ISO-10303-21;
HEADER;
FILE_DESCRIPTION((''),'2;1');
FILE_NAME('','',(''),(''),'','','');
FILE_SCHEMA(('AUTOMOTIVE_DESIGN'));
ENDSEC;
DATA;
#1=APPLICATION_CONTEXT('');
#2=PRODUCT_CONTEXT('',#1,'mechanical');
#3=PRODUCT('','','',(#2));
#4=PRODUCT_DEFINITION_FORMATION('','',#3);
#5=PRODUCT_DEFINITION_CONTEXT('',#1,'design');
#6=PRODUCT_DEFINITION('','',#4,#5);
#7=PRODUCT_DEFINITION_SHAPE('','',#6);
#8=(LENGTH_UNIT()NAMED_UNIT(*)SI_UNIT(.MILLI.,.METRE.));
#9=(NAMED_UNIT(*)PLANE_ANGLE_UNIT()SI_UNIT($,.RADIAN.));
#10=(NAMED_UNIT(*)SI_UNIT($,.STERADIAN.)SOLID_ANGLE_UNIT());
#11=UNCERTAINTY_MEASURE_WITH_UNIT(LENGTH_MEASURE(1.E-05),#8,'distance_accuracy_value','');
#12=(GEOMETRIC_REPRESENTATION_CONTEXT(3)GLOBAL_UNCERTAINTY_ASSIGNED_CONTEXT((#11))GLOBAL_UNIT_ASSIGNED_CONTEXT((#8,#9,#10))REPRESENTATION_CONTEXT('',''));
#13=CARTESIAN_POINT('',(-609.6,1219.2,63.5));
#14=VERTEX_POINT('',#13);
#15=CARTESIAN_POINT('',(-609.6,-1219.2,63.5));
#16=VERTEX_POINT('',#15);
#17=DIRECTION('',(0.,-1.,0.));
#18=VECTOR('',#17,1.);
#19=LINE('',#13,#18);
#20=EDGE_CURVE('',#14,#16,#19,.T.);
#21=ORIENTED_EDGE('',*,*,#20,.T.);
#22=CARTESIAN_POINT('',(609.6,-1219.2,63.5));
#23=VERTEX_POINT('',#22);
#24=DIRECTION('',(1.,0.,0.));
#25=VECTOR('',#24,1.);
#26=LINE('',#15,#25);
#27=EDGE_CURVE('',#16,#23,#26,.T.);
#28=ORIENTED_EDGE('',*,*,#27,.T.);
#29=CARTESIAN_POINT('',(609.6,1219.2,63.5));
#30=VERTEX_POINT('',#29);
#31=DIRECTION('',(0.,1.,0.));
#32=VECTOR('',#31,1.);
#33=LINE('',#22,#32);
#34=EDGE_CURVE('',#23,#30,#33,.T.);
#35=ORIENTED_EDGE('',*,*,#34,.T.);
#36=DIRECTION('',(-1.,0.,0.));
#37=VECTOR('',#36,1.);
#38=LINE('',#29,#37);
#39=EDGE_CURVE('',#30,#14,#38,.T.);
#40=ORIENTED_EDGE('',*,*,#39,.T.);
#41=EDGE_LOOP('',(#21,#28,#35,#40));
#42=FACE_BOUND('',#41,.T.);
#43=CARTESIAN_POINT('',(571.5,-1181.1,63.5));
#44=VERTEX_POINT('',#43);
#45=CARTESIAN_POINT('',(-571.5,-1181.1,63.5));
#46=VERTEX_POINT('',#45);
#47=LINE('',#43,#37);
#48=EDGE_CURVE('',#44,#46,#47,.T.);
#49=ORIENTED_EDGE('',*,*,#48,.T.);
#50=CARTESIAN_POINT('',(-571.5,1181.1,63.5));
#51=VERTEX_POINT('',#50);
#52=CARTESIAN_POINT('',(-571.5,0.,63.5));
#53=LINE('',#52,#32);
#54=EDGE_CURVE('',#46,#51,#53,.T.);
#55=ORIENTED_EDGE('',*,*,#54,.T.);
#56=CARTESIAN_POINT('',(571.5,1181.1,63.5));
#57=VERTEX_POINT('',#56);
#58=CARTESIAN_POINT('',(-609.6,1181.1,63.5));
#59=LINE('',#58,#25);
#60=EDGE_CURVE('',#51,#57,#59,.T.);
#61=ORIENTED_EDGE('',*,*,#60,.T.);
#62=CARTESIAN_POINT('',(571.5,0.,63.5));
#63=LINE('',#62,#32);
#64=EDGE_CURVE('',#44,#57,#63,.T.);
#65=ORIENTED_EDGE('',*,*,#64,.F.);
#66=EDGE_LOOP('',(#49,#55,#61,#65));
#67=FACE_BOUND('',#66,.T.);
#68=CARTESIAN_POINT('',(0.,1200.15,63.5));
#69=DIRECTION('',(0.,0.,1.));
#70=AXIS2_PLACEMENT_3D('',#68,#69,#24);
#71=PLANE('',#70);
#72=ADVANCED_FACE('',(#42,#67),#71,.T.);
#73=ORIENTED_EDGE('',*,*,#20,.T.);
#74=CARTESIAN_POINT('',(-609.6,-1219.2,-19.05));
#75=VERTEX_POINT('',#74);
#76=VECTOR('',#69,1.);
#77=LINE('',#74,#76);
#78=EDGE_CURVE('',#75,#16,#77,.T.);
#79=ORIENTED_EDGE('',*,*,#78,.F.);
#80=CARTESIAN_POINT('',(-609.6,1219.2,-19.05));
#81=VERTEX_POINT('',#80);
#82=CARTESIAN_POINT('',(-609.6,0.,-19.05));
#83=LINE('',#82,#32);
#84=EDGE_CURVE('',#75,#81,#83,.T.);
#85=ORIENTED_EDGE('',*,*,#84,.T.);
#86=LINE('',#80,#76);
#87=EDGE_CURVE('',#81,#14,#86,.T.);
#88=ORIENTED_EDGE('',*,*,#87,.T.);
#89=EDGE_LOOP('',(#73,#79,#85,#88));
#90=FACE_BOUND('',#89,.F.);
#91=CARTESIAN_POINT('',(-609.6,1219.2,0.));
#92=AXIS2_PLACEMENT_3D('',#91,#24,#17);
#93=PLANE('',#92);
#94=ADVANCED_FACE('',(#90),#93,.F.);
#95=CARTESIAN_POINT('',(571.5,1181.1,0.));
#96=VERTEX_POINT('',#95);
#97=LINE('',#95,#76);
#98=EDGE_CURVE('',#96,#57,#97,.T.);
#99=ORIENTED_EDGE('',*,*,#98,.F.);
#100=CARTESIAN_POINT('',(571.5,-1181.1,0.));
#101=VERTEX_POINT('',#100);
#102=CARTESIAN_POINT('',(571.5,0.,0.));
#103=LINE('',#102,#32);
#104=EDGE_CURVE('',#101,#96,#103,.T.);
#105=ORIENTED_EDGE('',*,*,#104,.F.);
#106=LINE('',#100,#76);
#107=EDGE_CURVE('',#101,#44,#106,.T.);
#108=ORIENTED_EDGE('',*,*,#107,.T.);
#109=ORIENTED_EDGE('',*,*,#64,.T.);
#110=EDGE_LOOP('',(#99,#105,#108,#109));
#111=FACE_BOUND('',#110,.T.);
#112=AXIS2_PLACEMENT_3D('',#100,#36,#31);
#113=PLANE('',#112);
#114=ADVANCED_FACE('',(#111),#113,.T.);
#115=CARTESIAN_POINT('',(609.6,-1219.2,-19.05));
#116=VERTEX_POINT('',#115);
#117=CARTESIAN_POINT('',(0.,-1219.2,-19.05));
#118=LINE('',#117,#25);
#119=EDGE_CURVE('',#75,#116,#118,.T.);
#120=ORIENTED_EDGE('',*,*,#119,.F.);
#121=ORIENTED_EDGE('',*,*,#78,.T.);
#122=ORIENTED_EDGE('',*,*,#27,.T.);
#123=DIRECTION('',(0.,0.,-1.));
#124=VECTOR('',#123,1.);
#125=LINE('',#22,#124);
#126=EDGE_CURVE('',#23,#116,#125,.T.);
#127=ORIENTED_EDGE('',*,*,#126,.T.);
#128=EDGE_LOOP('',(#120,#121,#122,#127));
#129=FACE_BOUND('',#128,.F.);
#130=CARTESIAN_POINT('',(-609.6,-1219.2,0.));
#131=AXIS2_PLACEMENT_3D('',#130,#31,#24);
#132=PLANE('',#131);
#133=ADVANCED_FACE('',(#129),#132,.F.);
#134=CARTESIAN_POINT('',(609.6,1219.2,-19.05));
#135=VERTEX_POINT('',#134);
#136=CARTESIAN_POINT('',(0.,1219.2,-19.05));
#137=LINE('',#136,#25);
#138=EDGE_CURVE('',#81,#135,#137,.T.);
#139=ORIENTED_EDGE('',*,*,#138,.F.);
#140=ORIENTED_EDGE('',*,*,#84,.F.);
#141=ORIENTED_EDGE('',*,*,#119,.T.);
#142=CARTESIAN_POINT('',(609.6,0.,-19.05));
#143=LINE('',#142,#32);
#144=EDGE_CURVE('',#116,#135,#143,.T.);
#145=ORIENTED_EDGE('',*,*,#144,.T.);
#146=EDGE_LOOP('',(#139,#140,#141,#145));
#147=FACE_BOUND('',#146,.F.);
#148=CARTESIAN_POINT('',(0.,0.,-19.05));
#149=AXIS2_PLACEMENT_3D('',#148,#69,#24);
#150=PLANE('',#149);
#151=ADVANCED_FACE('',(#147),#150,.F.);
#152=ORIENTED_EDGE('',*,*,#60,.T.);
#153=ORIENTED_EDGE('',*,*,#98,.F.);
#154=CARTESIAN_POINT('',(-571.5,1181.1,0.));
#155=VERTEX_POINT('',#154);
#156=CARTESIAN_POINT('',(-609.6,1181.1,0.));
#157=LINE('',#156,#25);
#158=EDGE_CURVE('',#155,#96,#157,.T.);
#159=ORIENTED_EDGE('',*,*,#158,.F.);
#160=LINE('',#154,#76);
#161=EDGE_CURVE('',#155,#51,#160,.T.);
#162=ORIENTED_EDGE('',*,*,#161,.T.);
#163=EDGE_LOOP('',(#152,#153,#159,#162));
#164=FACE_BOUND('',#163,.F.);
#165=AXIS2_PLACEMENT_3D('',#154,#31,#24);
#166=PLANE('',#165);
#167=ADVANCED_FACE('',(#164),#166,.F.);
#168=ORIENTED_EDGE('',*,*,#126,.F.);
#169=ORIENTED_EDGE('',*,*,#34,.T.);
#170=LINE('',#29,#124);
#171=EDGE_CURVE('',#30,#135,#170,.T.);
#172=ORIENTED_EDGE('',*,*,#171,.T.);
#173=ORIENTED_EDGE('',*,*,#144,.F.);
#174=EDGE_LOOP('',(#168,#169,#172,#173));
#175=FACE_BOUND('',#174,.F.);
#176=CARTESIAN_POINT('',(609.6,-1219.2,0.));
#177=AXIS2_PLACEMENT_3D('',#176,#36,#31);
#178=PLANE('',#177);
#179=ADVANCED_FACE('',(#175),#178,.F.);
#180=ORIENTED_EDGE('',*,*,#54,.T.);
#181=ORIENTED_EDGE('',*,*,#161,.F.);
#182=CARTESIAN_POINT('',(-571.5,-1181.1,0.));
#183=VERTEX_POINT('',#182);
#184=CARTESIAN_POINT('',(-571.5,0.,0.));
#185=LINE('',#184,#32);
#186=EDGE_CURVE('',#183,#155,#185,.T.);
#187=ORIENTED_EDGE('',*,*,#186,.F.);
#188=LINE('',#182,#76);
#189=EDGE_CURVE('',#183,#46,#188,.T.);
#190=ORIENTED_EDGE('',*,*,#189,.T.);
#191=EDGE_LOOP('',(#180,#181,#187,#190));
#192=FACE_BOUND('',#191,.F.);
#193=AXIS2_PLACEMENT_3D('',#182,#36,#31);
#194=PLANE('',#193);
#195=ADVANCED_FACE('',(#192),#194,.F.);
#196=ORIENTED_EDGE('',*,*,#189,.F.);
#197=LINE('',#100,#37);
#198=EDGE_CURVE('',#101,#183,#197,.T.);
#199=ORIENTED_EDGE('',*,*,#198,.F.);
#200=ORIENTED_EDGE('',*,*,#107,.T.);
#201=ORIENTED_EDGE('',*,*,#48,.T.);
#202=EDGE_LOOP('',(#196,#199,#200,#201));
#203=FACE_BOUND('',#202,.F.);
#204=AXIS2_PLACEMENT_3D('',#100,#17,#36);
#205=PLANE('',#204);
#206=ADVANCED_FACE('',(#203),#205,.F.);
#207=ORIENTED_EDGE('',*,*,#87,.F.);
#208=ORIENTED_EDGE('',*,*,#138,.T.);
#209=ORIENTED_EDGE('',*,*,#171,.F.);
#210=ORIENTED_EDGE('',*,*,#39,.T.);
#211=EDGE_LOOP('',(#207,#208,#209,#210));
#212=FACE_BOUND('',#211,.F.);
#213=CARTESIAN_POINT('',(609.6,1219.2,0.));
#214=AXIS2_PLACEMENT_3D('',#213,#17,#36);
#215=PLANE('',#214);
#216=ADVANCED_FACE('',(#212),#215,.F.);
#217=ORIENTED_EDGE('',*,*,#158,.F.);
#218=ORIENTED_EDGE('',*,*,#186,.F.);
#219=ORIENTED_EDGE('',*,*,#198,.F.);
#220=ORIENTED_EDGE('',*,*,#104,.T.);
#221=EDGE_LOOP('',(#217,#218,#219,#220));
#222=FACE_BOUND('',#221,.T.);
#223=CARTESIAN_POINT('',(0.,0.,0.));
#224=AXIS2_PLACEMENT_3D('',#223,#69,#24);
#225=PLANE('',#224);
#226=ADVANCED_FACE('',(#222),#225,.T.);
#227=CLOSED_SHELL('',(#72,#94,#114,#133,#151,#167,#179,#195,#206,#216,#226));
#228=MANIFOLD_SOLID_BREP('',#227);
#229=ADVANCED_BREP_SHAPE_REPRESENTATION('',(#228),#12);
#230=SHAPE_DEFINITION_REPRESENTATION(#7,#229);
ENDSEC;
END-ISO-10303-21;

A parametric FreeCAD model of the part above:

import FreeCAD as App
import Part
import Sketcher

V = App.Vector
Q = App.Units.Quantity

doc = App.newDocument("Part")
body = doc.addObject("PartDesign::Body", "Body")

# Sketch on XY plane
sketch1 = doc.addObject("Sketcher::SketchObject", "Sketch")
body.addObject(sketch1)
sketch1.AttachmentSupport = (doc.XY_Plane, [""])
sketch1.MapMode = "FlatFace"
sketch1.addGeometry([
    Part.LineSegment(V(-610, 1219, 0), V(-610, -1219, 0)),
    Part.LineSegment(V(-610, -1219, 0), V(610, -1219, 0)),
    Part.LineSegment(V(610, -1219, 0), V(610, 1219, 0)),
    Part.LineSegment(V(610, 1219, 0), V(-610, 1219, 0)),
], False)
sketch1.addConstraint([
    Sketcher.Constraint("Coincident", 0, 2, 1, 1),
    Sketcher.Constraint("Coincident", 1, 2, 2, 1),
    Sketcher.Constraint("Coincident", 2, 2, 3, 1),
    Sketcher.Constraint("Coincident", 3, 2, 0, 1),
    Sketcher.Constraint("Vertical", 0),
    Sketcher.Constraint("Horizontal", 1),
    Sketcher.Constraint("Vertical", 2),
    Sketcher.Constraint("Horizontal", 3),
    Sketcher.Constraint("Symmetric", 0, 2, 2, 2, -1, 1),
    Sketcher.Constraint("DistanceX", 1, 1, 1, 2, Q("48 in")),
    Sketcher.Constraint("DistanceY", 0, 2, 0, 1, Q("96 in")),
])
pad1 = doc.addObject("PartDesign::Pad", "Pad")
body.addObject(pad1)
pad1.Profile = sketch1
pad1.Length = Q("0.75 in")
pad1.Reversed = True

# Sketch on XY plane
sketch2 = doc.addObject("Sketcher::SketchObject", "Sketch001")
body.addObject(sketch2)
sketch2.AttachmentSupport = (doc.XY_Plane, [""])
sketch2.MapMode = "FlatFace"
sketch2.addGeometry([
    Part.LineSegment(V(610, 1219, 0), V(-610, 1219, 0)),  # 0
    Part.LineSegment(V(-610, 1219, 0), V(-610, -1219, 0)),  # 1
    Part.LineSegment(V(-610, -1219, 0), V(610, -1219, 0)),  # 2
    Part.LineSegment(V(610, -1219, 0), V(610, 1219, 0)),  # 3
    Part.LineSegment(V(-572, -1181, 0), V(-572, 1181, 0)),  # 4
    Part.LineSegment(V(-572, 1181, 0), V(572, 1181, 0)),  # 5
    Part.LineSegment(V(572, 1181, 0), V(572, -1181, 0)),  # 6
    Part.LineSegment(V(572, -1181, 0), V(-572, -1181, 0)),  # 7
], False)
sketch2.addConstraint([
    Sketcher.Constraint("Coincident", 0, 2, 1, 1),
    Sketcher.Constraint("Coincident", 1, 2, 2, 1),
    Sketcher.Constraint("Coincident", 2, 2, 3, 1),
    Sketcher.Constraint("Coincident", 3, 2, 0, 1),
    Sketcher.Constraint("Coincident", 4, 2, 5, 1),
    Sketcher.Constraint("Coincident", 5, 2, 6, 1),
    Sketcher.Constraint("Coincident", 6, 2, 7, 1),
    Sketcher.Constraint("Coincident", 7, 2, 4, 1),
    Sketcher.Constraint("Horizontal", 0),
    Sketcher.Constraint("Vertical", 1),
    Sketcher.Constraint("Horizontal", 2),
    Sketcher.Constraint("Vertical", 3),
    Sketcher.Constraint("Vertical", 4),
    Sketcher.Constraint("Horizontal", 5),
    Sketcher.Constraint("Vertical", 6),
    Sketcher.Constraint("Horizontal", 7),
    Sketcher.Constraint("Symmetric", 0, 2, 2, 2, -1, 1),
    Sketcher.Constraint("Symmetric", 4, 2, 6, 2, -1, 1),
    Sketcher.Constraint("DistanceX", 0, 2, 0, 1, Q("48 in")),
    Sketcher.Constraint("DistanceX", 5, 1, 5, 2, Q("45 in")),
    Sketcher.Constraint("DistanceY", 1, 2, 1, 1, Q("96 in")),
    Sketcher.Constraint("DistanceY", 4, 1, 4, 2, Q("93 in")),
])
pad2 = doc.addObject("PartDesign::Pad", "Pad001")
body.addObject(pad2)
pad2.Profile = sketch2
pad2.Length = Q("2.5 in")

doc.recompute()
